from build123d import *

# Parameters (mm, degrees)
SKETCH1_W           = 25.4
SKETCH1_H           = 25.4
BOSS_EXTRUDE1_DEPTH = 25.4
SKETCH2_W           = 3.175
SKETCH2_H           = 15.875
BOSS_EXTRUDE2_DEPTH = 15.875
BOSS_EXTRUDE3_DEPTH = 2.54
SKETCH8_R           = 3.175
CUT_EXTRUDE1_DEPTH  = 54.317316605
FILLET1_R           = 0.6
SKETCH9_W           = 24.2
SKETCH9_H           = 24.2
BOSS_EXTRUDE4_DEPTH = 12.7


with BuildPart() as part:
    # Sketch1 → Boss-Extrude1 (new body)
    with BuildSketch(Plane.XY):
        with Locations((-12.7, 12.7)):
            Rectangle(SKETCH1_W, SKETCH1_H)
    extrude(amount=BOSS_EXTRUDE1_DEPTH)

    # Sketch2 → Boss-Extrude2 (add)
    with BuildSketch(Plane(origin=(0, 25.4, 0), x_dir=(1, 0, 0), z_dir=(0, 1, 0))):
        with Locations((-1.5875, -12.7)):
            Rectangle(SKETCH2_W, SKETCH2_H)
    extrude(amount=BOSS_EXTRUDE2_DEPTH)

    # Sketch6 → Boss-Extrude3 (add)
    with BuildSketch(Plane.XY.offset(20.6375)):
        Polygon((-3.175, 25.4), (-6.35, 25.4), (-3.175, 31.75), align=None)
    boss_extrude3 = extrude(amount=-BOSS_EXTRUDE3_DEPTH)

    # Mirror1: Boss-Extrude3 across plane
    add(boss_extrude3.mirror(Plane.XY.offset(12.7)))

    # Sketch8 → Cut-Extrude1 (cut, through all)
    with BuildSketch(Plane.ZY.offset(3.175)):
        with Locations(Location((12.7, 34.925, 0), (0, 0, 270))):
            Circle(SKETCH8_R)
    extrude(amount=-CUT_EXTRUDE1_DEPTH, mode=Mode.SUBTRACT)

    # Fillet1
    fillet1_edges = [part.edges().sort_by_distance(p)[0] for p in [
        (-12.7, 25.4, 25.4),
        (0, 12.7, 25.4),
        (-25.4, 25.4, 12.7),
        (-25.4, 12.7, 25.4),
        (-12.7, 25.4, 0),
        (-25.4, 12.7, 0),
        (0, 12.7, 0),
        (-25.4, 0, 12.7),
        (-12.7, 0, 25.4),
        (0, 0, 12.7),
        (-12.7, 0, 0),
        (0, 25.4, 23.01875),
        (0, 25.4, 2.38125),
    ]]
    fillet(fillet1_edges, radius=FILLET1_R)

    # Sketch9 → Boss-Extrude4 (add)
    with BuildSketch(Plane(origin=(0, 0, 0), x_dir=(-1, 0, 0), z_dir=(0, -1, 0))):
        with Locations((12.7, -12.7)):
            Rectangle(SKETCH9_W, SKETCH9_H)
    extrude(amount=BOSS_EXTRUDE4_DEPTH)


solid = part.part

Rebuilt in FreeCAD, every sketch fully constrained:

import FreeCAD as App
import Part
import Sketcher
Q = App.Units.Quantity


def edges_at(feature, points):
    """Names of the edges that pass closest to the given points."""
    edges = feature.Shape.Edges
    near = lambda p: min(range(len(edges)), key=lambda i: edges[i].distToShape(Part.Vertex(*p))[0])
    return sorted({f"Edge{near(p) + 1}" for p in points})

doc = App.newDocument("Part")
body = doc.addObject("PartDesign::Body", "Body")

sketch1 = body.newObject("Sketcher::SketchObject", "Sketch")
sketch1.AttachmentSupport = (doc.getObject("XY_Plane"), [""])
sketch1.MapMode = "FlatFace"
sketch1.addGeometry([
    Part.LineSegment(App.Vector(-25, 25, 0), App.Vector(-25, 0, 0)),
    Part.LineSegment(App.Vector(-25, 0, 0), App.Vector(0, 0, 0)),
    Part.LineSegment(App.Vector(0, 0, 0), App.Vector(0, 25, 0)),
    Part.LineSegment(App.Vector(0, 25, 0), App.Vector(-25, 25, 0)),
], False)
sketch1.addConstraint([
    Sketcher.Constraint("Coincident", 0, 2, 1, 1),
    Sketcher.Constraint("Coincident", 1, 2, 2, 1),
    Sketcher.Constraint("Coincident", 2, 2, 3, 1),
    Sketcher.Constraint("Coincident", 3, 2, 0, 1),
    Sketcher.Constraint("Vertical", 0),
    Sketcher.Constraint("Horizontal", 1),
    Sketcher.Constraint("Vertical", 2),
    Sketcher.Constraint("Horizontal", 3),
    Sketcher.Constraint("Coincident", 1, 2, -1, 1),
    Sketcher.Constraint("Equal", 3, 0),
    Sketcher.Constraint("DistanceX", 1, 1, 1, 2, Q("1 in")),
])
pad1 = body.newObject("PartDesign::Pad", "Pad")
pad1.Profile = sketch1
pad1.Length = Q("1 in")

sketch2 = body.newObject("Sketcher::SketchObject", "Sketch001")
sketch2.AttachmentSupport = (doc.getObject("XZ_Plane"), [""])
sketch2.MapMode = "FlatFace"
sketch2.AttachmentOffset = App.Placement(App.Vector(0, 0, -1 * 25.4), App.Rotation())
sketch2.addGeometry([
    Part.LineSegment(App.Vector(-3.2, 4.8, 0), App.Vector(-3.2, 20.6, 0)),
    Part.LineSegment(App.Vector(-3.2, 20.6, 0), App.Vector(0, 20.6, 0)),
    Part.LineSegment(App.Vector(0, 20.6, 0), App.Vector(0, 4.8, 0)),
    Part.LineSegment(App.Vector(0, 4.8, 0), App.Vector(-3.2, 4.8, 0)),
], False)
sketch2.addConstraint([
    Sketcher.Constraint("Coincident", 0, 2, 1, 1),
    Sketcher.Constraint("Coincident", 1, 2, 2, 1),
    Sketcher.Constraint("Coincident", 2, 2, 3, 1),
    Sketcher.Constraint("Coincident", 3, 2, 0, 1),
    Sketcher.Constraint("Vertical", 0),
    Sketcher.Constraint("Horizontal", 1),
    Sketcher.Constraint("Vertical", 2),
    Sketcher.Constraint("Horizontal", 3),
    Sketcher.Constraint("PointOnObject", 1, 2, -2),
    Sketcher.Constraint("DistanceX", 1, 1, 1, 2, Q("0.125 in")),
    Sketcher.Constraint("DistanceY", 0, 1, 0, 2, Q("0.625 in")),
    Sketcher.Constraint("DistanceY", -1, 1, 0, 2, Q("0.8125 in")),
])
pad2 = body.newObject("PartDesign::Pad", "Pad001")
pad2.Profile = sketch2
pad2.Length = Q("0.625 in")
pad2.Reversed = True

sketch3 = body.newObject("Sketcher::SketchObject", "Sketch002")
sketch3.AttachmentSupport = (doc.getObject("XY_Plane"), [""])
sketch3.MapMode = "FlatFace"
sketch3.AttachmentOffset = App.Placement(App.Vector(0, 0, 0.8125 * 25.4), App.Rotation())
sketch3.addGeometry([
    Part.LineSegment(App.Vector(-6.3, 25.4, 0), App.Vector(-3.2, 25.4, 0)),
    Part.LineSegment(App.Vector(-3.2, 25.4, 0), App.Vector(-3.2, 31.8, 0)),
    Part.LineSegment(App.Vector(-3.2, 31.8, 0), App.Vector(-6.3, 25.4, 0)),
], False)
sketch3.addConstraint([
    Sketcher.Constraint("Coincident", 0, 2, 1, 1),
    Sketcher.Constraint("Coincident", 1, 2, 2, 1),
    Sketcher.Constraint("Coincident", 2, 2, 0, 1),
    Sketcher.Constraint("Horizontal", 0),
    Sketcher.Constraint("Vertical", 1),
    Sketcher.Constraint("DistanceY", -1, 1, 0, 2, Q("1 in")),
    Sketcher.Constraint("DistanceY", 1, 1, 1, 2, Q("0.25 in")),
    Sketcher.Constraint("DistanceX", 0, 1, 0, 2, Q("0.125 in")),
    Sketcher.Constraint("DistanceX", 2, 2, -1, 1, Q("0.25 in")),
])
pad3 = body.newObject("PartDesign::Pad", "Pad002")
pad3.Profile = sketch3
pad3.Length = Q("0.1 in")
pad3.Reversed = True
doc.recompute()

datumplane = body.newObject("PartDesign::Plane", "DatumPlane")
datumplane.AttachmentSupport = (doc.getObject("XY_Plane"), [""])
datumplane.MapMode = "FlatFace"
datumplane.AttachmentOffset = App.Placement(App.Vector(0, 0, 0.5 * 25.4), App.Rotation())
mirrored = body.newObject("PartDesign::Mirrored", "Mirrored")
mirrored.Originals = [pad3]
mirrored.MirrorPlane = (datumplane, [""])
body.Tip = mirrored

sketch4 = body.newObject("Sketcher::SketchObject", "Sketch003")
sketch4.AttachmentSupport = (doc.getObject("YZ_Plane"), [""])
sketch4.MapMode = "FlatFace"
sketch4.AttachmentOffset = App.Placement(App.Vector(0, 0, -0.125 * 25.4), App.Rotation())
sketch4.addGeometry(Part.Circle(App.Vector(34.9, 12.7, 0), App.Vector(0, 0, 1), 3.2), False)
sketch4.addConstraint([
    Sketcher.Constraint("Diameter", 0, Q("0.25 in")),
    Sketcher.Constraint("DistanceY", -1, 1, 0, 3, Q("0.5 in")),
    Sketcher.Constraint("DistanceX", -1, 1, 0, 3, Q("1.375 in")),
])
pocket1 = body.newObject("PartDesign::Pocket", "Pocket")
pocket1.Profile = sketch4
pocket1.Type = "ThroughAll"
pocket1.Reversed = True
doc.recompute()

fillet = body.newObject("PartDesign::Fillet", "Fillet")
fillet.Base = (pocket1, edges_at(pocket1, [
    (-12.7, 25.4, 25.4),
    (0, 12.7, 25.4),
    (-25.4, 25.4, 12.7),
    (-25.4, 12.7, 25.4),
    (-12.7, 25.4, 0),
    (-25.4, 12.7, 0),
    (0, 12.7, 0),
    (-25.4, 0, 12.7),
    (-12.7, 0, 25.4),
    (0, 0, 12.7),
    (-12.7, 0, 0),
    (0, 25.4, 23.019),
    (0, 25.4, 2.381),
]))
fillet.Radius = 0.6

sketch5 = body.newObject("Sketcher::SketchObject", "Sketch004")
sketch5.AttachmentSupport = (doc.getObject("XZ_Plane"), [""])
sketch5.MapMode = "FlatFace"
sketch5.addGeometry([
    Part.LineSegment(App.Vector(-1, 1, 0), App.Vector(-1, 25, 0)),
    Part.LineSegment(App.Vector(-1, 25, 0), App.Vector(-25, 25, 0)),
    Part.LineSegment(App.Vector(-25, 25, 0), App.Vector(-25, 1, 0)),
    Part.LineSegment(App.Vector(-25, 1, 0), App.Vector(-1, 1, 0)),
], False)
sketch5.addConstraint([
    Sketcher.Constraint("Coincident", 0, 2, 1, 1),
    Sketcher.Constraint("Coincident", 1, 2, 2, 1),
    Sketcher.Constraint("Coincident", 2, 2, 3, 1),
    Sketcher.Constraint("Coincident", 3, 2, 0, 1),
    Sketcher.Constraint("Vertical", 0),
    Sketcher.Constraint("Horizontal", 1),
    Sketcher.Constraint("Vertical", 2),
    Sketcher.Constraint("Horizontal", 3),
    Sketcher.Constraint("Equal", 3, 0),
    Sketcher.Constraint("DistanceX", 1, 2, 1, 1, Q("24.2 mm")),
    Sketcher.Constraint("DistanceX", 0, 2, -1, 1, Q("0.6 mm")),
    Sketcher.Constraint("DistanceY", -1, 1, 0, 2, Q("24.8 mm")),
])
pad4 = body.newObject("PartDesign::Pad", "Pad003")
pad4.Profile = sketch5
pad4.Length = Q("0.5 in")

doc.recompute()
